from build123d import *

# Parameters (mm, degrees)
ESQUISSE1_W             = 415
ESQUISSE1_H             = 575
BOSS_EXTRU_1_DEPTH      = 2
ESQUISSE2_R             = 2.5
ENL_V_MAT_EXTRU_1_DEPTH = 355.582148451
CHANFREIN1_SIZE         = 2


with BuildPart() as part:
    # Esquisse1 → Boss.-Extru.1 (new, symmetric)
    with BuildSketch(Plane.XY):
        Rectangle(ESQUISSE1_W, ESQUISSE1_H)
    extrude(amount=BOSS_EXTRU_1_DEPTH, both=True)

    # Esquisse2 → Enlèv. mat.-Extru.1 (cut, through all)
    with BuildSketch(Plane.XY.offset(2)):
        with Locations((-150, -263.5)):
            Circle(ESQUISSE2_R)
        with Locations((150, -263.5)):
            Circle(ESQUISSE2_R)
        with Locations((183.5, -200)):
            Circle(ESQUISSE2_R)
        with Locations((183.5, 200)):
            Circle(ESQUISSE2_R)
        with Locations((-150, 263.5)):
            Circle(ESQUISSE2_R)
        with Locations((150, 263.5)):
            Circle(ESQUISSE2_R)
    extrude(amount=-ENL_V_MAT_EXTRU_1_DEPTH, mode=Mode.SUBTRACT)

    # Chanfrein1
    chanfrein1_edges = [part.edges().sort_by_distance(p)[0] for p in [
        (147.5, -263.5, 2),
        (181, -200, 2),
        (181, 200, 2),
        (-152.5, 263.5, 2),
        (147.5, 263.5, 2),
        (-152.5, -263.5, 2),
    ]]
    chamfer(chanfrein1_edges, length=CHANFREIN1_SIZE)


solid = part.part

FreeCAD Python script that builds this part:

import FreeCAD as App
import Part
import Sketcher
Q = App.Units.Quantity


def edges_at(feature, points):
    """Names of the edges that pass closest to the given points."""
    edges = feature.Shape.Edges
    near = lambda p: min(range(len(edges)), key=lambda i: edges[i].distToShape(Part.Vertex(*p))[0])
    return sorted({f"Edge{near(p) + 1}" for p in points})


def add_polygon(sketch, points):
    """Adds a closed chain of lines whose ends are joined by coincident constraints."""
    first, n = sketch.GeometryCount, len(points)
    for a, b in zip(points, points[1:] + points[:1]):
        sketch.addGeometry(Part.LineSegment(App.Vector(*a, 0), App.Vector(*b, 0)), False)
    for i in range(n):
        sketch.addConstraint(Sketcher.Constraint("Coincident", first + i, 2, first + (i + 1) % n, 1))

doc = App.newDocument("Part")
body = doc.addObject("PartDesign::Body", "Body")

sketch1 = body.newObject("Sketcher::SketchObject", "Sketch")
sketch1.AttachmentSupport = (doc.getObject("XY_Plane"), [""])
sketch1.MapMode = "FlatFace"
add_polygon(sketch1, [(-208, 288), (-208, -288), (208, -288), (208, 288)])
sketch1.addConstraint(Sketcher.Constraint("Vertical", 0))
sketch1.addConstraint(Sketcher.Constraint("Horizontal", 1))
sketch1.addConstraint(Sketcher.Constraint("Vertical", 2))
sketch1.addConstraint(Sketcher.Constraint("Horizontal", 3))
sketch1.addConstraint(Sketcher.Constraint("Symmetric", 0, 2, 2, 2, -1, 1))
sketch1.addConstraint(Sketcher.Constraint("DistanceX", 1, 1, 1, 2, Q("415 mm")))
sketch1.addConstraint(Sketcher.Constraint("DistanceY", 0, 2, 0, 1, Q("575 mm")))
pad1 = body.newObject("PartDesign::Pad", "Pad")
pad1.Profile = sketch1
pad1.Length = 4
pad1.Midplane = True

sketch2 = body.newObject("Sketcher::SketchObject", "Sketch001")
sketch2.AttachmentSupport = (doc.getObject("XY_Plane"), [""])
sketch2.MapMode = "FlatFace"
sketch2.AttachmentOffset = App.Placement(App.Vector(0, 0, 2), App.Rotation())
sketch2.addGeometry(Part.Circle(App.Vector(-150, -263.5, 0), App.Vector(0, 0, 1), 2.5), False)
sketch2.addGeometry(Part.Circle(App.Vector(150, -263.5, 0), App.Vector(0, 0, 1), 2.5), False)
sketch2.addGeometry(Part.Circle(App.Vector(183.5, -200, 0), App.Vector(0, 0, 1), 2.5), False)
sketch2.addGeometry(Part.Circle(App.Vector(183.5, 200, 0), App.Vector(0, 0, 1), 2.5), False)
sketch2.addGeometry(Part.Circle(App.Vector(-150, 263.5, 0), App.Vector(0, 0, 1), 2.5), False)
sketch2.addGeometry(Part.Circle(App.Vector(150, 263.5, 0), App.Vector(0, 0, 1), 2.5), False)
sketch2.addConstraint(Sketcher.Constraint("Equal", 0, 1))
sketch2.addConstraint(Sketcher.Constraint("Equal", 1, 2))
sketch2.addConstraint(Sketcher.Constraint("Equal", 2, 3))
sketch2.addConstraint(Sketcher.Constraint("Equal", 3, 4))
sketch2.addConstraint(Sketcher.Constraint("Equal", 4, 5))
sketch2.addConstraint(Sketcher.Constraint("Symmetric", 1, 3, 4, 3, -1, 1))
sketch2.addConstraint(Sketcher.Constraint("Symmetric", 0, 3, 5, 3, -1, 1))
sketch2.addConstraint(Sketcher.Constraint("Symmetric", 0, 3, 1, 3, -2))
sketch2.addConstraint(Sketcher.Constraint("Symmetric", 2, 3, 3, 3, -1))
sketch2.addConstraint(Sketcher.Constraint("Diameter", 0, Q("5 mm")))
sketch2.addConstraint(Sketcher.Constraint("DistanceX", 0, 3, -1, 1, Q("150 mm")))
sketch2.addConstraint(Sketcher.Constraint("DistanceY", 2, 3, -1, 1, Q("200 mm")))
sketch2.addConstraint(Sketcher.Constraint("DistanceY", 0, 3, 4, 3, Q("527 mm")))
sketch2.addConstraint(Sketcher.Constraint("DistanceX", -1, 1, 2, 3, Q("183.5 mm")))
pocket1 = body.newObject("PartDesign::Pocket", "Pocket")
pocket1.Profile = sketch2
pocket1.Type = "ThroughAll"
doc.recompute()

chamfer = body.newObject("PartDesign::Chamfer", "Chamfer")
chamfer.Base = (pocket1, edges_at(pocket1, [
    (147.5, -263.5, 2),
    (181, -200, 2),
    (181, 200, 2),
    (-152.5, 263.5, 2),
    (147.5, 263.5, 2),
    (-152.5, -263.5, 2),
]))
chamfer.Size = 2

doc.recompute()
